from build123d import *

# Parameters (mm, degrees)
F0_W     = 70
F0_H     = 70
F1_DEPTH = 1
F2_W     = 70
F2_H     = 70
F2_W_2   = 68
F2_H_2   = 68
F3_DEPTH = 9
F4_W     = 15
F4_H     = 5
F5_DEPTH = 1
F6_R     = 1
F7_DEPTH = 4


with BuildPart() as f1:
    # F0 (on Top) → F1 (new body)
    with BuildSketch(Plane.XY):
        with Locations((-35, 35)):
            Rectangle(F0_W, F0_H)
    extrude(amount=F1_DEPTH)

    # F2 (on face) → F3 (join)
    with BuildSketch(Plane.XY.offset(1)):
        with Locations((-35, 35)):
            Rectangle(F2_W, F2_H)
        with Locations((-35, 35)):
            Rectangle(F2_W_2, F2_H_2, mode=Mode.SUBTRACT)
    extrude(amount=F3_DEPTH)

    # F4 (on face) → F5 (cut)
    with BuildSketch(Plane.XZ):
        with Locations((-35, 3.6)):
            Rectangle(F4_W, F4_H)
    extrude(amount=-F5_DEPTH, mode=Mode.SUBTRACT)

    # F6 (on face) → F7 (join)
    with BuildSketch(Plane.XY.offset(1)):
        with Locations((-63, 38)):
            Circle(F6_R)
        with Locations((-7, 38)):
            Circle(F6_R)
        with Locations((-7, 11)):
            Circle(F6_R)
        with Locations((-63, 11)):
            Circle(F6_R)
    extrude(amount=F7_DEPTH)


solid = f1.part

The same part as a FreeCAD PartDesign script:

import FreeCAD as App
import Part
import Sketcher

V = App.Vector
Q = App.Units.Quantity

doc = App.newDocument("Part")
body = doc.addObject("PartDesign::Body", "Body")

# Sketch on XY plane
sketch1 = body.newObject("Sketcher::SketchObject", "Sketch")
sketch1.AttachmentSupport = (doc.getObject("XY_Plane"), [""])
sketch1.MapMode = "FlatFace"
sketch1.addGeometry(Part.LineSegment(V(-70, 70, 0), V(-70, 0, 0)), False)
sketch1.addGeometry(Part.LineSegment(V(-70, 0, 0), V(0, 0, 0)), False)
sketch1.addGeometry(Part.LineSegment(V(0, 0, 0), V(0, 70, 0)), False)
sketch1.addGeometry(Part.LineSegment(V(0, 70, 0), V(-70, 70, 0)), False)
sketch1.addConstraint(Sketcher.Constraint("Coincident", 0, 2, 1, 1))
sketch1.addConstraint(Sketcher.Constraint("Coincident", 1, 2, 2, 1))
sketch1.addConstraint(Sketcher.Constraint("Coincident", 2, 2, 3, 1))
sketch1.addConstraint(Sketcher.Constraint("Coincident", 3, 2, 0, 1))
sketch1.addConstraint(Sketcher.Constraint("Vertical", 0))
sketch1.addConstraint(Sketcher.Constraint("Horizontal", 1))
sketch1.addConstraint(Sketcher.Constraint("Vertical", 2))
sketch1.addConstraint(Sketcher.Constraint("Horizontal", 3))
sketch1.addConstraint(Sketcher.Constraint("Coincident", 1, 2, -1, 1))
sketch1.addConstraint(Sketcher.Constraint("Equal", 3, 0))
sketch1.addConstraint(Sketcher.Constraint("DistanceX", 1, 1, 1, 2, Q("70 mm")))
pad1 = body.newObject("PartDesign::Pad", "Pad")
pad1.Profile = sketch1
pad1.Length = 1

# Sketch on XY plane
sketch2 = body.newObject("Sketcher::SketchObject", "Sketch001")
sketch2.AttachmentSupport = (doc.getObject("XY_Plane"), [""])
sketch2.MapMode = "FlatFace"
sketch2.AttachmentOffset = App.Placement(V(0, 0, 1), App.Rotation())
sketch2.addGeometry(Part.LineSegment(V(-70, 70, 0), V(-70, 0, 0)), False)
sketch2.addGeometry(Part.LineSegment(V(-70, 0, 0), V(0, 0, 0)), False)
sketch2.addGeometry(Part.LineSegment(V(0, 0, 0), V(0, 70, 0)), False)
sketch2.addGeometry(Part.LineSegment(V(0, 70, 0), V(-70, 70, 0)), False)
sketch2.addGeometry(Part.LineSegment(V(-1, 1, 0), V(-69, 1, 0)), False)
sketch2.addGeometry(Part.LineSegment(V(-69, 1, 0), V(-69, 69, 0)), False)
sketch2.addGeometry(Part.LineSegment(V(-69, 69, 0), V(-1, 69, 0)), False)
sketch2.addGeometry(Part.LineSegment(V(-1, 69, 0), V(-1, 1, 0)), False)
sketch2.addConstraint(Sketcher.Constraint("Coincident", 0, 2, 1, 1))
sketch2.addConstraint(Sketcher.Constraint("Coincident", 1, 2, 2, 1))
sketch2.addConstraint(Sketcher.Constraint("Coincident", 2, 2, 3, 1))
sketch2.addConstraint(Sketcher.Constraint("Coincident", 3, 2, 0, 1))
sketch2.addConstraint(Sketcher.Constraint("Coincident", 4, 2, 5, 1))
sketch2.addConstraint(Sketcher.Constraint("Coincident", 5, 2, 6, 1))
sketch2.addConstraint(Sketcher.Constraint("Coincident", 6, 2, 7, 1))
sketch2.addConstraint(Sketcher.Constraint("Coincident", 7, 2, 4, 1))
sketch2.addConstraint(Sketcher.Constraint("Vertical", 0))
sketch2.addConstraint(Sketcher.Constraint("Horizontal", 1))
sketch2.addConstraint(Sketcher.Constraint("Vertical", 2))
sketch2.addConstraint(Sketcher.Constraint("Horizontal", 3))
sketch2.addConstraint(Sketcher.Constraint("Horizontal", 4))
sketch2.addConstraint(Sketcher.Constraint("Vertical", 5))
sketch2.addConstraint(Sketcher.Constraint("Horizontal", 6))
sketch2.addConstraint(Sketcher.Constraint("Vertical", 7))
sketch2.addConstraint(Sketcher.Constraint("Coincident", 1, 2, -1, 1))
sketch2.addConstraint(Sketcher.Constraint("Equal", 3, 0))
sketch2.addConstraint(Sketcher.Constraint("Equal", 6, 5))
sketch2.addConstraint(Sketcher.Constraint("DistanceX", 1, 1, 1, 2, Q("70 mm")))
sketch2.addConstraint(Sketcher.Constraint("DistanceX", 4, 2, 4, 1, Q("68 mm")))
sketch2.addConstraint(Sketcher.Constraint("DistanceX", 4, 2, -1, 1, Q("69 mm")))
sketch2.addConstraint(Sketcher.Constraint("DistanceY", -1, 1, 4, 2, Q("1 mm")))
pad2 = body.newObject("PartDesign::Pad", "Pad001")
pad2.Profile = sketch2
pad2.Length = 9

# Sketch on XZ plane
sketch3 = body.newObject("Sketcher::SketchObject", "Sketch002")
sketch3.AttachmentSupport = (doc.getObject("XZ_Plane"), [""])
sketch3.MapMode = "FlatFace"
sketch3.addGeometry(Part.LineSegment(V(-42.5, 6.1, 0), V(-42.5, 1.1, 0)), False)
sketch3.addGeometry(Part.LineSegment(V(-42.5, 1.1, 0), V(-27.5, 1.1, 0)), False)
sketch3.addGeometry(Part.LineSegment(V(-27.5, 1.1, 0), V(-27.5, 6.1, 0)), False)
sketch3.addGeometry(Part.LineSegment(V(-27.5, 6.1, 0), V(-42.5, 6.1, 0)), False)
sketch3.addConstraint(Sketcher.Constraint("Coincident", 0, 2, 1, 1))
sketch3.addConstraint(Sketcher.Constraint("Coincident", 1, 2, 2, 1))
sketch3.addConstraint(Sketcher.Constraint("Coincident", 2, 2, 3, 1))
sketch3.addConstraint(Sketcher.Constraint("Coincident", 3, 2, 0, 1))
sketch3.addConstraint(Sketcher.Constraint("Vertical", 0))
sketch3.addConstraint(Sketcher.Constraint("Horizontal", 1))
sketch3.addConstraint(Sketcher.Constraint("Vertical", 2))
sketch3.addConstraint(Sketcher.Constraint("Horizontal", 3))
sketch3.addConstraint(Sketcher.Constraint("DistanceX", 1, 1, 1, 2, Q("15 mm")))
sketch3.addConstraint(Sketcher.Constraint("DistanceY", 0, 2, 0, 1, Q("5 mm")))
sketch3.addConstraint(Sketcher.Constraint("DistanceX", 0, 2, -1, 1, Q("42.5 mm")))
sketch3.addConstraint(Sketcher.Constraint("DistanceY", -1, 1, 0, 2, Q("1.1 mm")))
pocket1 = body.newObject("PartDesign::Pocket", "Pocket")
pocket1.Profile = sketch3
pocket1.Length = 1

# Sketch on XY plane
sketch4 = body.newObject("Sketcher::SketchObject", "Sketch003")
sketch4.AttachmentSupport = (doc.getObject("XY_Plane"), [""])
sketch4.MapMode = "FlatFace"
sketch4.AttachmentOffset = App.Placement(V(0, 0, 1), App.Rotation())
sketch4.addGeometry(Part.Circle(V(-63, 38, 0), V(0, 0, 1), 1), False)
sketch4.addGeometry(Part.Circle(V(-7, 38, 0), V(0, 0, 1), 1), False)
sketch4.addGeometry(Part.Circle(V(-7, 11, 0), V(0, 0, 1), 1), False)
sketch4.addGeometry(Part.Circle(V(-63, 11, 0), V(0, 0, 1), 1), False)
sketch4.addConstraint(Sketcher.Constraint("Equal", 0, 1))
sketch4.addConstraint(Sketcher.Constraint("Equal", 1, 2))
sketch4.addConstraint(Sketcher.Constraint("Equal", 2, 3))
sketch4.addConstraint(Sketcher.Constraint("Horizontal", 0, 3, 1, 3))
sketch4.addConstraint(Sketcher.Constraint("Horizontal", 2, 3, 3, 3))
sketch4.addConstraint(Sketcher.Constraint("Vertical", 1, 3, 2, 3))
sketch4.addConstraint(Sketcher.Constraint("Vertical", 0, 3, 3, 3))
sketch4.addConstraint(Sketcher.Constraint("Diameter", 0, Q("2 mm")))
sketch4.addConstraint(Sketcher.Constraint("DistanceX", 0, 3, -1, 1, Q("63 mm")))
sketch4.addConstraint(Sketcher.Constraint("DistanceY", -1, 1, 0, 3, Q("38 mm")))
sketch4.addConstraint(Sketcher.Constraint("DistanceX", 1, 3, -1, 1, Q("7 mm")))
sketch4.addConstraint(Sketcher.Constraint("DistanceY", -1, 1, 2, 3, Q("11 mm")))
pad3 = body.newObject("PartDesign::Pad", "Pad002")
pad3.Profile = sketch4
pad3.Length = 4

doc.recompute()
